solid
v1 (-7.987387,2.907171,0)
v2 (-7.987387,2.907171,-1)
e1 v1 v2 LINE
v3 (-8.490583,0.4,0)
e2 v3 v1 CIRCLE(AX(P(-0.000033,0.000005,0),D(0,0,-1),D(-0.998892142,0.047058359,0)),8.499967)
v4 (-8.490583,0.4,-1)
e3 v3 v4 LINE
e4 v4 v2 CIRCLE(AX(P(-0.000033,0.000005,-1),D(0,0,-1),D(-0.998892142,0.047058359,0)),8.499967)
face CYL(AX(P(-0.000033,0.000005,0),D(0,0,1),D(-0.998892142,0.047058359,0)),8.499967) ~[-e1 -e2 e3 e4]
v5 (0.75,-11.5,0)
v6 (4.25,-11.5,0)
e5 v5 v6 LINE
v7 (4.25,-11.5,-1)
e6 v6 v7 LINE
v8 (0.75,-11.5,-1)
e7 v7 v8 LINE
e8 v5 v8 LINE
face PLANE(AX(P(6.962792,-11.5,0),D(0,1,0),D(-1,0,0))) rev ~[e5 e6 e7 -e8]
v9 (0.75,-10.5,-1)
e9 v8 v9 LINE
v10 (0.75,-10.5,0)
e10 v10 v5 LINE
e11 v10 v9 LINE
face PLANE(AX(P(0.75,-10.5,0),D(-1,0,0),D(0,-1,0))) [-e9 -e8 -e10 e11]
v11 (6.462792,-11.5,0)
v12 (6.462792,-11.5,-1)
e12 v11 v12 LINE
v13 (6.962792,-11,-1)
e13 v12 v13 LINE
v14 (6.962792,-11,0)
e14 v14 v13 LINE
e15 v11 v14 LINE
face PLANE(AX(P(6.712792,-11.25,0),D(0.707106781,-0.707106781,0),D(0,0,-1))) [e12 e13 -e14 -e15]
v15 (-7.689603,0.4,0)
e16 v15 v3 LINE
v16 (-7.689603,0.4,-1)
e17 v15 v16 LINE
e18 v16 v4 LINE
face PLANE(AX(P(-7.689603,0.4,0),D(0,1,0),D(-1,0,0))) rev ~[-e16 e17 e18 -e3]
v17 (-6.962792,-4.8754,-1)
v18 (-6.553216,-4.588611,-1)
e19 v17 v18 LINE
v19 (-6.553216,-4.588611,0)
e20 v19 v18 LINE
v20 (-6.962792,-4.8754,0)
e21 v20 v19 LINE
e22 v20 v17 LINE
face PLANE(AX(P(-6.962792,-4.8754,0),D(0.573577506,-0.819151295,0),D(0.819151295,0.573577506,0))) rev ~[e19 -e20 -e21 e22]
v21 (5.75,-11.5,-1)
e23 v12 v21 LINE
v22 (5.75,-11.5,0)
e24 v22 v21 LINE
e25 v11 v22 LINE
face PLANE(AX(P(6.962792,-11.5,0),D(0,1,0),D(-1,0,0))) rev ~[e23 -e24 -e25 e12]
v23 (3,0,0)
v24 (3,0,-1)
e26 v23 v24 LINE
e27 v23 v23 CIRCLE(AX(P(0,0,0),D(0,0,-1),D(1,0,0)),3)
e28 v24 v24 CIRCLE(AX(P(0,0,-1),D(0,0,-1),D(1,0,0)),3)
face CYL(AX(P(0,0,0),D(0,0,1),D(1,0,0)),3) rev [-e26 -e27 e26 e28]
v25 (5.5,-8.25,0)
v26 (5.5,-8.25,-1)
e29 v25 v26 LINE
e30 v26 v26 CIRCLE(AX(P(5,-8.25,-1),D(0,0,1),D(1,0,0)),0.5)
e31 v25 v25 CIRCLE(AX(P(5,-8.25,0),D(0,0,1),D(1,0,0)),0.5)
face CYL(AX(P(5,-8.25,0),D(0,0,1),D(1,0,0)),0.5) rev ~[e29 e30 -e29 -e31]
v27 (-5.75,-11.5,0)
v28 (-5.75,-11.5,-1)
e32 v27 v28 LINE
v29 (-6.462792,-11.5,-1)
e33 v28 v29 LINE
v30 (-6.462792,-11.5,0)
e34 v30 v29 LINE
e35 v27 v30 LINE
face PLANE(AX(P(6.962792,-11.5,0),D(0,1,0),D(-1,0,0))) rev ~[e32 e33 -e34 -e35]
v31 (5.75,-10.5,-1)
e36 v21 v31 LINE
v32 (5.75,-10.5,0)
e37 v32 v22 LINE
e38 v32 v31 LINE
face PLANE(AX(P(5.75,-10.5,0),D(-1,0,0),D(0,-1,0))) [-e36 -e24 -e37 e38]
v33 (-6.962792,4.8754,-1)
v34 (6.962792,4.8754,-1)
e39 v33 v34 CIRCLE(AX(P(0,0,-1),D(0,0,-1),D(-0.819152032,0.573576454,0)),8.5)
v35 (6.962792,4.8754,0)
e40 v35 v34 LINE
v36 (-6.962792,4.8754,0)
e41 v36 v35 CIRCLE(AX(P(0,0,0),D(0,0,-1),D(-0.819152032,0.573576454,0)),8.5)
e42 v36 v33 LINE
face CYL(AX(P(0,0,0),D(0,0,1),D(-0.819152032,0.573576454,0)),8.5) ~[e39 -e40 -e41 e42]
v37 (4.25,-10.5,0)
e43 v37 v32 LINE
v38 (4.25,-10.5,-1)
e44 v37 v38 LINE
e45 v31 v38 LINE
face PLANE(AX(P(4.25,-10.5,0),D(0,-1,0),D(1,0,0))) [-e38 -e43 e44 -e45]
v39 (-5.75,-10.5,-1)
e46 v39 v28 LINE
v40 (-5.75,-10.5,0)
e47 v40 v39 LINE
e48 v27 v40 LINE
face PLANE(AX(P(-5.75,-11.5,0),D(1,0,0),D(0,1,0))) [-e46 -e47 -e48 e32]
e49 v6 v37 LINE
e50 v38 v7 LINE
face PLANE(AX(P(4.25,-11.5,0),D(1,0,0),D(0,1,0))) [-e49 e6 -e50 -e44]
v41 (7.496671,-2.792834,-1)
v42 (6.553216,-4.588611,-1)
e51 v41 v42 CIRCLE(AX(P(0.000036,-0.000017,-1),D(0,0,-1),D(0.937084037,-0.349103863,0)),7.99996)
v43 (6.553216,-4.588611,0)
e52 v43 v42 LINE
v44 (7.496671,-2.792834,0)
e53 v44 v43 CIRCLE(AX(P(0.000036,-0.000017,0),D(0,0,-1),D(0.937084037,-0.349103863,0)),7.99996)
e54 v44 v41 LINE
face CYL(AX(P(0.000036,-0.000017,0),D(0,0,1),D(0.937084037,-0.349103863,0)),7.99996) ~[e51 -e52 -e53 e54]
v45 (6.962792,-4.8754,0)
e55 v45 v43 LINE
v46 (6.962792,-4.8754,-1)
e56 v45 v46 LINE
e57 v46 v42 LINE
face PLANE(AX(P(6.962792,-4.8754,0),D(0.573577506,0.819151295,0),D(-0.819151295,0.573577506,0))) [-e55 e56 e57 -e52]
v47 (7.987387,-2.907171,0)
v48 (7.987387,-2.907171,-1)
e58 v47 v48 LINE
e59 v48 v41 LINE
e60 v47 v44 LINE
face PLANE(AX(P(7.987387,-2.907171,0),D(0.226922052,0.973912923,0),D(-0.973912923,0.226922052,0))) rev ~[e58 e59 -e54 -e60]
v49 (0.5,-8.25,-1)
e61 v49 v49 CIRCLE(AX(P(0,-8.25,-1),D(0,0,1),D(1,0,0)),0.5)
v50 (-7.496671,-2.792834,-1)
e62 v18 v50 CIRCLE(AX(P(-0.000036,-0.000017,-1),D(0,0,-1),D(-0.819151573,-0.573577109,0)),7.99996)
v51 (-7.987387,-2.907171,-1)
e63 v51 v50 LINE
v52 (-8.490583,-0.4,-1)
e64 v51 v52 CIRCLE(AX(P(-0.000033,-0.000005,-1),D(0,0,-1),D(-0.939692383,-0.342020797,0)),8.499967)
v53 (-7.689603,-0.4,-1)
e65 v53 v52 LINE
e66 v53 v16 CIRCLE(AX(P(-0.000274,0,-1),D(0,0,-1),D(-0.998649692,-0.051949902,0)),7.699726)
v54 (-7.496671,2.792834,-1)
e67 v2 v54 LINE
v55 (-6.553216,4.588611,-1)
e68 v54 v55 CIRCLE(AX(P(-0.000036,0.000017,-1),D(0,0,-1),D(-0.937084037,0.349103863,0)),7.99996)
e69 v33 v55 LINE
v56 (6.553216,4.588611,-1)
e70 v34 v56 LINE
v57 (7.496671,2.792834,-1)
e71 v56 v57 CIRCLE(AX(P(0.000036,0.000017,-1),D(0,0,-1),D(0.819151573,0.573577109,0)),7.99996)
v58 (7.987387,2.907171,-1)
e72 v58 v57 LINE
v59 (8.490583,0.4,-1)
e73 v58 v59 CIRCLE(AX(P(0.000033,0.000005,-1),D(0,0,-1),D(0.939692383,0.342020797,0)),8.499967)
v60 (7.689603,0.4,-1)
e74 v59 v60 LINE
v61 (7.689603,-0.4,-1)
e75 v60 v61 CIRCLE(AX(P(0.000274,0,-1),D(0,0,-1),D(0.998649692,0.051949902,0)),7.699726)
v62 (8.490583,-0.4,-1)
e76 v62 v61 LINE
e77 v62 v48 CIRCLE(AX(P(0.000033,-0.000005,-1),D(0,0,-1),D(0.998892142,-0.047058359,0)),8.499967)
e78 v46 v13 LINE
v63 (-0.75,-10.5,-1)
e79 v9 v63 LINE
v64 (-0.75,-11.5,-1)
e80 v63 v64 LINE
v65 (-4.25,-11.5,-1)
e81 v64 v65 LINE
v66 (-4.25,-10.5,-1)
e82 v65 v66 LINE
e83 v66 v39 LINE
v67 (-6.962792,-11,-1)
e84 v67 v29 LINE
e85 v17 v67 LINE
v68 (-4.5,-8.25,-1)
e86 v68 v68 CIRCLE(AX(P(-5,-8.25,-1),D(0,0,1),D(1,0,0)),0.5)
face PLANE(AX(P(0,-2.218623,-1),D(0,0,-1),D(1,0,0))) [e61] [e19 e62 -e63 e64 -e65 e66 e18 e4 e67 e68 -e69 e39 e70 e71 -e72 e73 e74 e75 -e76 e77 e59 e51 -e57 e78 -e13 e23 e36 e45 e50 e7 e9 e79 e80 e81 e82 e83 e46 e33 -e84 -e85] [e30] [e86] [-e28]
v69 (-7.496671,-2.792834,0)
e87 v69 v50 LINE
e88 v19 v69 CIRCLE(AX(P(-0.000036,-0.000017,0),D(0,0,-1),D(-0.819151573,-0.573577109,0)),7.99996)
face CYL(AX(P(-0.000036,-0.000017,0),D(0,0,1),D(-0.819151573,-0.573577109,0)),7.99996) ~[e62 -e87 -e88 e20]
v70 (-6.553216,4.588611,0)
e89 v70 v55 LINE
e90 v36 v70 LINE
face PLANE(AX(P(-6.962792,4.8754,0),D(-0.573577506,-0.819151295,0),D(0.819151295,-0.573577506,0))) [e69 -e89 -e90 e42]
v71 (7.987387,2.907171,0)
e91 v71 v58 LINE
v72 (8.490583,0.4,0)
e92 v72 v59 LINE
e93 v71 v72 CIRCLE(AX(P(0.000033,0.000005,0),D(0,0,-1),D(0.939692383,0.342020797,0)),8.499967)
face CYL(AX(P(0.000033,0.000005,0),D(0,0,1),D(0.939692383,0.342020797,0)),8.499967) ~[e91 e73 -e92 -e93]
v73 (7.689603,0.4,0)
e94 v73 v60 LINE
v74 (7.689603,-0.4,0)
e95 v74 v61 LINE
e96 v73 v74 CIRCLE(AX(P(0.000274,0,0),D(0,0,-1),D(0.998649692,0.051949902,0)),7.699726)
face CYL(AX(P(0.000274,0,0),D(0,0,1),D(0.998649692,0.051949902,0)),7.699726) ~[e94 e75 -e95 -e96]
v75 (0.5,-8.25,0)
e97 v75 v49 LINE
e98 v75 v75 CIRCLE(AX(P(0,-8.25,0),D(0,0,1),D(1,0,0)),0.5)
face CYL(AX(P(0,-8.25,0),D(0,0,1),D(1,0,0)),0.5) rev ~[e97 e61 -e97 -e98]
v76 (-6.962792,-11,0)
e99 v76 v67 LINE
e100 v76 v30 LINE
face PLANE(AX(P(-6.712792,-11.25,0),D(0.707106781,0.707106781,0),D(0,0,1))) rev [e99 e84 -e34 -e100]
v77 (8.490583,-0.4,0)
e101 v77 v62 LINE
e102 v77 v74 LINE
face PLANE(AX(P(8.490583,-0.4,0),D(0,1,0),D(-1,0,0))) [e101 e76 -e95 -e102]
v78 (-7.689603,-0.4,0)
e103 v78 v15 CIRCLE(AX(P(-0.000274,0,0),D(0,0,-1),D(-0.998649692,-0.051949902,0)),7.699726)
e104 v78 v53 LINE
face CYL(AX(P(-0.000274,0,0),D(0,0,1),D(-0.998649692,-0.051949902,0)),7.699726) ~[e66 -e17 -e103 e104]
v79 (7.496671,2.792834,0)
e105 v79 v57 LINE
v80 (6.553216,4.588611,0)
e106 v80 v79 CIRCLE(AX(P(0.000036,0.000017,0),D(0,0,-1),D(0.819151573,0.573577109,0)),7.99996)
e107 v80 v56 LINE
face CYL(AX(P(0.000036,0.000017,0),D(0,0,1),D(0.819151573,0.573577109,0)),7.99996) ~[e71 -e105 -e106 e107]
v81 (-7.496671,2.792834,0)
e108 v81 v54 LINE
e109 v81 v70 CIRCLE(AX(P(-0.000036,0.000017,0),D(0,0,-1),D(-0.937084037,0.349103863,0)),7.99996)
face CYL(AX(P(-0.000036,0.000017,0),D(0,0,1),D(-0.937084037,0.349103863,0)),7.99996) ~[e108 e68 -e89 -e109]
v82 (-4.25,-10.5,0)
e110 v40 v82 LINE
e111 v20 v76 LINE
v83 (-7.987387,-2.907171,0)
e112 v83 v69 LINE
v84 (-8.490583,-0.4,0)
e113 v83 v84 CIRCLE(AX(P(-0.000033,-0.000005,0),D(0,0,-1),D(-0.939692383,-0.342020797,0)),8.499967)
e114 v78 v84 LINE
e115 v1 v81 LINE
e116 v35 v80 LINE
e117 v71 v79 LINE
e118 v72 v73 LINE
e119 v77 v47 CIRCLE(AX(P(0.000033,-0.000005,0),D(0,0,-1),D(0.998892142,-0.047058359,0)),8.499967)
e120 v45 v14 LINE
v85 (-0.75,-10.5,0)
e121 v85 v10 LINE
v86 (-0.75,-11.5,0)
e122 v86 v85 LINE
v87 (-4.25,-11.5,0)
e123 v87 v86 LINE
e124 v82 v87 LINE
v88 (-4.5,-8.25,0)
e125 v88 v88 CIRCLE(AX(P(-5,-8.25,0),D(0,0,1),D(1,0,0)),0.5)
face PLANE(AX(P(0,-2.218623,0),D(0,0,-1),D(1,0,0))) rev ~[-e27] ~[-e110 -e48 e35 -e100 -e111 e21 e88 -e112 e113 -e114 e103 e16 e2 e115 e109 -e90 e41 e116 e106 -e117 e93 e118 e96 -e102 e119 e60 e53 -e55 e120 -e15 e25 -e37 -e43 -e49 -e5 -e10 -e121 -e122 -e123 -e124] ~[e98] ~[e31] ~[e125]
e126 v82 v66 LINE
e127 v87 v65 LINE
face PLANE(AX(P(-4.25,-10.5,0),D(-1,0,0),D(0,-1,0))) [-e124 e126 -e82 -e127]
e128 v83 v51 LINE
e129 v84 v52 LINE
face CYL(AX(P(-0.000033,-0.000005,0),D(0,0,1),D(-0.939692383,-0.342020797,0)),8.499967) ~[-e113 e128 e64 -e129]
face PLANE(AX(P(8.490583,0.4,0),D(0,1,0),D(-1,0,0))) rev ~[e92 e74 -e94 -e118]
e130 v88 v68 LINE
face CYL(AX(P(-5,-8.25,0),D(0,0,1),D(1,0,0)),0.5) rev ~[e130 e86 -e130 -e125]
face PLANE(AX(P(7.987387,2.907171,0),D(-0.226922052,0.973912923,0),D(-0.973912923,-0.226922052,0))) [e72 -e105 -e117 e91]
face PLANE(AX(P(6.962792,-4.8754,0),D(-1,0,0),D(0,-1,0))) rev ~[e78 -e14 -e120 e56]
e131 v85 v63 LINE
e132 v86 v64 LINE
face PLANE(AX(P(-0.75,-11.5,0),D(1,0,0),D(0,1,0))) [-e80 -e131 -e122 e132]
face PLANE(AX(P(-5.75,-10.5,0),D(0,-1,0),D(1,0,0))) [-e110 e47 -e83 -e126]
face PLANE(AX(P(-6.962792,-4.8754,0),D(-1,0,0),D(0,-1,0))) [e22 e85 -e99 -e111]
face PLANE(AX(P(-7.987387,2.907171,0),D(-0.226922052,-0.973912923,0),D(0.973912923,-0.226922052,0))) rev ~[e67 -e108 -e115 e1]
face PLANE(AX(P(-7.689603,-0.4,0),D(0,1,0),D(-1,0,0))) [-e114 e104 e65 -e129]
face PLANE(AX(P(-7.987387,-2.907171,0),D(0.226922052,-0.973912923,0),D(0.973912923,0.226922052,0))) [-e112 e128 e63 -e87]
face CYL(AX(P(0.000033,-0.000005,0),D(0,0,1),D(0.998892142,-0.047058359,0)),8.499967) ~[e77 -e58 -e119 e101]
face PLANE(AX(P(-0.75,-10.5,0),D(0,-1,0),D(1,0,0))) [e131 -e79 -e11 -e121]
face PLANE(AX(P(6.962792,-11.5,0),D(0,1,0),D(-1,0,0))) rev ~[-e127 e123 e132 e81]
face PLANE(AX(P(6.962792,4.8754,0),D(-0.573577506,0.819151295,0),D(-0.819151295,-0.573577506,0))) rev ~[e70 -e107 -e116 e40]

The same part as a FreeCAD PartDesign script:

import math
import FreeCAD as App
import Part
import Sketcher
from FreeCAD import Vector


def edges_at(feature, points):
    """Names of the edges that pass closest to the given points."""
    edges = feature.Shape.Edges
    near = lambda p: min(range(len(edges)), key=lambda i: edges[i].distToShape(Part.Vertex(*p))[0])
    return sorted({f"Edge{near(p) + 1}" for p in points})

doc = App.newDocument("Part")
body = doc.addObject("PartDesign::Body", "Body")

sketch1 = body.newObject("Sketcher::SketchObject", "Sketch")
sketch1.AttachmentSupport = (doc.getObject("XY_Plane"), [""])
sketch1.MapMode = "FlatFace"
sketch1.addGeometry([
    Part.ArcOfCircle(Part.Circle(Vector(-0.000033, -0.000005, 0), Vector(0, 0, 1), 8.499967), math.radians(-177.302758), math.radians(-159.99996)),
    Part.LineSegment(Vector(-8.490583, -0.4, 0), Vector(-7.689603, -0.4, 0)),
    Part.ArcOfCircle(Part.Circle(Vector(-0.000274, 0, 0), Vector(0, 0, 1), 7.699726), math.radians(177.022149), math.radians(182.977851)),
    Part.LineSegment(Vector(-7.689603, 0.4, 0), Vector(-8.490583, 0.4, 0)),
    Part.ArcOfCircle(Part.Circle(Vector(-0.000033, 0.000005, 0), Vector(0, 0, 1), 8.499967), math.radians(159.99996), math.radians(177.302758)),
    Part.LineSegment(Vector(-7.987387, 2.907171, 0), Vector(-7.496671, 2.792834, 0)),
    Part.ArcOfCircle(Part.Circle(Vector(-0.000036, 0.000017, 0), Vector(0, 0, 1), 7.99996), math.radians(144.999953), math.radians(159.567487)),
    Part.LineSegment(Vector(-6.553216, 4.588611, 0), Vector(-6.962792, 4.8754, 0)),
    Part.ArcOfCircle(Part.Circle(Vector(0, 0, 0), Vector(0, 0, 1), 8.5), math.radians(35.000001), math.radians(144.999999)),
    Part.LineSegment(Vector(6.962792, 4.8754, 0), Vector(6.553216, 4.588611, 0)),
    Part.ArcOfCircle(Part.Circle(Vector(0.000036, 0.000017, 0), Vector(0, 0, 1), 7.99996), math.radians(20.432513), math.radians(35.000047)),
    Part.LineSegment(Vector(7.496671, 2.792834, 0), Vector(7.987387, 2.907171, 0)),
    Part.ArcOfCircle(Part.Circle(Vector(0.000033, 0.000005, 0), Vector(0, 0, 1), 8.499967), math.radians(2.697242), math.radians(20.00004)),
    Part.LineSegment(Vector(8.490583, 0.4, 0), Vector(7.689603, 0.4, 0)),
    Part.ArcOfCircle(Part.Circle(Vector(0.000274, 0, 0), Vector(0, 0, 1), 7.699726), math.radians(-2.977851), math.radians(2.977851)),
    Part.LineSegment(Vector(7.689603, -0.4, 0), Vector(8.490583, -0.4, 0)),
    Part.ArcOfCircle(Part.Circle(Vector(0.000033, -0.000005, 0), Vector(0, 0, 1), 8.499967), math.radians(-20.00004), math.radians(-2.697242)),
    Part.LineSegment(Vector(7.987387, -2.907171, 0), Vector(7.496671, -2.792834, 0)),
    Part.ArcOfCircle(Part.Circle(Vector(0.000036, -0.000017, 0), Vector(0, 0, 1), 7.99996), math.radians(-35.000047), math.radians(-20.432513)),
    Part.LineSegment(Vector(6.553216, -4.588611, 0), Vector(6.962792, -4.8754, 0)),
    Part.LineSegment(Vector(6.962792, -4.8754, 0), Vector(6.962792, -11.5, 0)),
    Part.LineSegment(Vector(6.962792, -11.5, 0), Vector(-6.962792, -11.5, 0)),
    Part.LineSegment(Vector(-6.962792, -11.5, 0), Vector(-6.962792, -4.8754, 0)),
    Part.LineSegment(Vector(-6.962792, -4.8754, 0), Vector(-6.553216, -4.588611, 0)),
    Part.ArcOfCircle(Part.Circle(Vector(-0.000036, -0.000017, 0), Vector(0, 0, 1), 7.99996), math.radians(-159.567487), math.radians(-144.999953)),
    Part.LineSegment(Vector(-7.496671, -2.792834, 0), Vector(-7.987387, -2.907171, 0)),
    Part.Circle(Vector(0, 0, 0), Vector(0, 0, 1), 3),
], False)
sketch1.addConstraint([
    Sketcher.Constraint("Coincident", 0, 1, 1, 1),
    Sketcher.Constraint("Coincident", 1, 2, 2, 2),
    Sketcher.Constraint("Coincident", 2, 1, 3, 1),
    Sketcher.Constraint("Coincident", 3, 2, 4, 2),
    Sketcher.Constraint("Coincident", 4, 1, 5, 1),
    Sketcher.Constraint("Coincident", 5, 2, 6, 2),
    Sketcher.Constraint("Coincident", 6, 1, 7, 1),
    Sketcher.Constraint("Coincident", 7, 2, 8, 2),
    Sketcher.Constraint("Coincident", 8, 1, 9, 1),
    Sketcher.Constraint("Coincident", 9, 2, 10, 2),
    Sketcher.Constraint("Coincident", 10, 1, 11, 1),
    Sketcher.Constraint("Coincident", 11, 2, 12, 2),
    Sketcher.Constraint("Coincident", 12, 1, 13, 1),
    Sketcher.Constraint("Coincident", 13, 2, 14, 2),
    Sketcher.Constraint("Coincident", 14, 1, 15, 1),
    Sketcher.Constraint("Coincident", 15, 2, 16, 2),
    Sketcher.Constraint("Coincident", 16, 1, 17, 1),
    Sketcher.Constraint("Coincident", 17, 2, 18, 2),
    Sketcher.Constraint("Coincident", 18, 1, 19, 1),
    Sketcher.Constraint("Coincident", 19, 2, 20, 1),
    Sketcher.Constraint("Coincident", 20, 2, 21, 1),
    Sketcher.Constraint("Coincident", 21, 2, 22, 1),
    Sketcher.Constraint("Coincident", 22, 2, 23, 1),
    Sketcher.Constraint("Coincident", 23, 2, 24, 2),
    Sketcher.Constraint("Coincident", 24, 1, 25, 1),
    Sketcher.Constraint("Coincident", 25, 2, 0, 2),
    Sketcher.Constraint("Horizontal", 1),
    Sketcher.Constraint("Horizontal", 3),
    Sketcher.Constraint("Horizontal", 13),
    Sketcher.Constraint("Horizontal", 15),
    Sketcher.Constraint("Vertical", 20),
    Sketcher.Constraint("Horizontal", 21),
    Sketcher.Constraint("Vertical", 22),
    Sketcher.Constraint("Coincident", 8, 3, -1, 1),
    Sketcher.Constraint("Coincident", 26, 3, -1, 1),
    Sketcher.Constraint("Equal", 0, 4),
    Sketcher.Constraint("Equal", 6, 10),
    Sketcher.Constraint("Equal", 4, 12),
    Sketcher.Constraint("Equal", 2, 14),
    Sketcher.Constraint("Equal", 12, 16),
    Sketcher.Constraint("Equal", 10, 18),
    Sketcher.Constraint("Equal", 18, 24),
    Sketcher.Constraint("Symmetric", 0, 3, 12, 3, -1, 1),
    Sketcher.Constraint("Symmetric", 2, 3, 14, 3, -1, 1),
    Sketcher.Constraint("Symmetric", 4, 3, 16, 3, -1, 1),
    Sketcher.Constraint("Symmetric", 6, 3, 18, 3, -1, 1),
    Sketcher.Constraint("Symmetric", 10, 3, 24, 3, -1, 1),
    Sketcher.Constraint("Symmetric", 7, 2, 19, 2, -1, 1),
    Sketcher.Constraint("Symmetric", 8, 1, 22, 2, -1, 1),
    Sketcher.Constraint("Symmetric", 6, 3, 10, 3, -2),
    Sketcher.Constraint("Symmetric", 4, 3, 12, 3, -2),
    Sketcher.Constraint("Symmetric", 2, 1, 13, 2, -2),
    Sketcher.Constraint("Parallel", 5, 17),
    Sketcher.Constraint("Parallel", 7, 19),
    Sketcher.Constraint("Parallel", 9, 23),
    Sketcher.Constraint("Parallel", 11, 25),
    Sketcher.Constraint("Horizontal", 7, 2, 8, 1),
    Sketcher.Constraint("Horizontal", 6, 1, 9, 2),
    Sketcher.Constraint("Horizontal", 5, 2, 10, 1),
    Sketcher.Constraint("Horizontal", 4, 1, 11, 2),
    Sketcher.Constraint("Horizontal", 1, 2, 14, 1),
    Sketcher.Constraint("Horizontal", 17, 2, 24, 1),
    Sketcher.Constraint("Vertical", 1, 2, 2, 1),
    Sketcher.Constraint("Vertical", 11, 2, 16, 1),
    Sketcher.Constraint("Diameter", 26, 6.0),
    Sketcher.Constraint("Radius", 8, 8.5),
    Sketcher.Constraint("Distance", 7, 0.5),
    Sketcher.Constraint("DistanceY", 0, 1, -1, 1, 0.4),
    Sketcher.Constraint("DistanceY", 20, 2, -1, 1, 11.5),
    Sketcher.Constraint("Radius", 6, 7.99996),
    Sketcher.Constraint("DistanceY", 20, 2, 20, 1, 6.6246),
    Sketcher.Constraint("Radius", 0, 8.499967),
    Sketcher.Constraint("Radius", 2, 7.699726),
    Sketcher.Constraint("DistanceX", 1, 1, 1, 2, 0.80098),
    Sketcher.Constraint("Distance", 5, 0.50386),
    Sketcher.Constraint("DistanceY", -1, 1, 4, 1, 2.907171),
    Sketcher.Constraint("DistanceX", 5, 2, -1, 1, 7.496671),
    Sketcher.Constraint("DistanceY", -1, 1, 6, 1, 4.588611),
    Sketcher.Constraint("DistanceX", 2, 3, 0, 3, 0.000242),
    Sketcher.Constraint("DistanceX", 2, 3, 6, 3, 0.000238),
])
pad1 = body.newObject("PartDesign::Pad", "Pad")
pad1.Profile = sketch1
pad1.Length = 1
pad1.Reversed = True

sketch2 = body.newObject("Sketcher::SketchObject", "Sketch001")
sketch2.AttachmentSupport = (doc.getObject("XY_Plane"), [""])
sketch2.MapMode = "FlatFace"
sketch2.addGeometry([
    Part.Circle(Vector(0, -8.25, 0), Vector(0, 0, 1), 0.5),
    Part.Circle(Vector(-5, -8.25, 0), Vector(0, 0, 1), 0.5),
    Part.Circle(Vector(5, -8.25, 0), Vector(0, 0, 1), 0.5),
], False)
sketch2.addConstraint([
    Sketcher.Constraint("Equal", 0, 1),
    Sketcher.Constraint("Equal", 1, 2),
    Sketcher.Constraint("Symmetric", 1, 3, 2, 3, -2),
    Sketcher.Constraint("PointOnObject", 0, 3, -2),
    Sketcher.Constraint("Horizontal", 0, 3, 1, 3),
    Sketcher.Constraint("Diameter", 0, 1.0),
    Sketcher.Constraint("DistanceX", 1, 3, -1, 1, 5.0),
    Sketcher.Constraint("DistanceY", 0, 3, -1, 1, 8.25),
])
pocket1 = body.newObject("PartDesign::Pocket", "Pocket")
pocket1.Profile = sketch2
pocket1.Length = 2

sketch3 = body.newObject("Sketcher::SketchObject", "Sketch002")
sketch3.AttachmentSupport = (doc.getObject("XY_Plane"), [""])
sketch3.MapMode = "FlatFace"
sketch3.addGeometry([
    Part.LineSegment(Vector(-5.75, -11.5, 0), Vector(-6.962792, -11.5, 0)),
    Part.LineSegment(Vector(-6.962792, -11.5, 0), Vector(-6.962792, -12.871278, 0)),
    Part.LineSegment(Vector(-6.962792, -12.871278, 0), Vector(6.962792, -12.871278, 0)),
    Part.LineSegment(Vector(6.962792, -12.871278, 0), Vector(6.962792, -11.5, 0)),
    Part.LineSegment(Vector(6.962792, -11.5, 0), Vector(5.75, -11.5, 0)),
    Part.LineSegment(Vector(5.75, -11.5, 0), Vector(5.75, -10.5, 0)),
    Part.LineSegment(Vector(5.75, -10.5, 0), Vector(4.25, -10.5, 0)),
    Part.LineSegment(Vector(4.25, -10.5, 0), Vector(4.25, -11.5, 0)),
    Part.LineSegment(Vector(4.25, -11.5, 0), Vector(0.75, -11.5, 0)),
    Part.LineSegment(Vector(0.75, -11.5, 0), Vector(0.75, -10.5, 0)),
    Part.LineSegment(Vector(0.75, -10.5, 0), Vector(-0.75, -10.5, 0)),
    Part.LineSegment(Vector(-0.75, -10.5, 0), Vector(-0.75, -11.5, 0)),
    Part.LineSegment(Vector(-0.75, -11.5, 0), Vector(-4.25, -11.5, 0)),
    Part.LineSegment(Vector(-4.25, -11.5, 0), Vector(-4.25, -10.5, 0)),
    Part.LineSegment(Vector(-4.25, -10.5, 0), Vector(-5.75, -10.5, 0)),
    Part.LineSegment(Vector(-5.75, -10.5, 0), Vector(-5.75, -11.5, 0)),
], False)
sketch3.addConstraint([
    Sketcher.Constraint("Coincident", 0, 2, 1, 1),
    Sketcher.Constraint("Coincident", 1, 2, 2, 1),
    Sketcher.Constraint("Coincident", 2, 2, 3, 1),
    Sketcher.Constraint("Coincident", 3, 2, 4, 1),
    Sketcher.Constraint("Coincident", 4, 2, 5, 1),
    Sketcher.Constraint("Coincident", 5, 2, 6, 1),
    Sketcher.Constraint("Coincident", 6, 2, 7, 1),
    Sketcher.Constraint("Coincident", 7, 2, 8, 1),
    Sketcher.Constraint("Coincident", 8, 2, 9, 1),
    Sketcher.Constraint("Coincident", 9, 2, 10, 1),
    Sketcher.Constraint("Coincident", 10, 2, 11, 1),
    Sketcher.Constraint("Coincident", 11, 2, 12, 1),
    Sketcher.Constraint("Coincident", 12, 2, 13, 1),
    Sketcher.Constraint("Coincident", 13, 2, 14, 1),
    Sketcher.Constraint("Coincident", 14, 2, 15, 1),
    Sketcher.Constraint("Coincident", 15, 2, 0, 1),
    Sketcher.Constraint("Horizontal", 0),
    Sketcher.Constraint("Vertical", 1),
    Sketcher.Constraint("Horizontal", 2),
    Sketcher.Constraint("Vertical", 3),
    Sketcher.Constraint("Horizontal", 4),
    Sketcher.Constraint("Vertical", 5),
    Sketcher.Constraint("Horizontal", 6),
    Sketcher.Constraint("Vertical", 7),
    Sketcher.Constraint("Horizontal", 8),
    Sketcher.Constraint("Vertical", 9),
    Sketcher.Constraint("Horizontal", 10),
    Sketcher.Constraint("Vertical", 11),
    Sketcher.Constraint("Horizontal", 12),
    Sketcher.Constraint("Vertical", 13),
    Sketcher.Constraint("Horizontal", 14),
    Sketcher.Constraint("Vertical", 15),
    Sketcher.Constraint("Symmetric", 0, 2, 3, 2, -2),
    Sketcher.Constraint("Symmetric", 8, 2, 11, 2, -2),
    Sketcher.Constraint("Symmetric", 6, 2, 13, 2, -2),
    Sketcher.Constraint("Horizontal", 4, 2, 7, 2),
    Sketcher.Constraint("Horizontal", 6, 2, 9, 2),
    Sketcher.Constraint("Equal", 0, 4),
    Sketcher.Constraint("Equal", 6, 10),
    Sketcher.Constraint("DistanceY", 5, 1, 5, 2, 1.0),
    Sketcher.Constraint("DistanceX", 6, 2, 6, 1, 1.5),
    Sketcher.Constraint("DistanceX", 8, 2, 8, 1, 3.5),
    Sketcher.Constraint("DistanceY", 0, 2, -1, 1, 11.5),
    Sketcher.Constraint("DistanceY", 1, 2, 1, 1, 1.371278),
    Sketcher.Constraint("DistanceX", 0, 2, 0, 1, 1.212792),
])
pocket2 = body.newObject("PartDesign::Pocket", "Pocket001")
pocket2.Profile = sketch3
pocket2.Length = 5
doc.recompute()

chamfer = body.newObject("PartDesign::Chamfer", "Chamfer")
chamfer.Base = (pocket2, edges_at(pocket2, [(-6.963, -11.5, -0.5), (6.963, -11.5, -0.5)]))
chamfer.Size = 0.5

doc.recompute()
